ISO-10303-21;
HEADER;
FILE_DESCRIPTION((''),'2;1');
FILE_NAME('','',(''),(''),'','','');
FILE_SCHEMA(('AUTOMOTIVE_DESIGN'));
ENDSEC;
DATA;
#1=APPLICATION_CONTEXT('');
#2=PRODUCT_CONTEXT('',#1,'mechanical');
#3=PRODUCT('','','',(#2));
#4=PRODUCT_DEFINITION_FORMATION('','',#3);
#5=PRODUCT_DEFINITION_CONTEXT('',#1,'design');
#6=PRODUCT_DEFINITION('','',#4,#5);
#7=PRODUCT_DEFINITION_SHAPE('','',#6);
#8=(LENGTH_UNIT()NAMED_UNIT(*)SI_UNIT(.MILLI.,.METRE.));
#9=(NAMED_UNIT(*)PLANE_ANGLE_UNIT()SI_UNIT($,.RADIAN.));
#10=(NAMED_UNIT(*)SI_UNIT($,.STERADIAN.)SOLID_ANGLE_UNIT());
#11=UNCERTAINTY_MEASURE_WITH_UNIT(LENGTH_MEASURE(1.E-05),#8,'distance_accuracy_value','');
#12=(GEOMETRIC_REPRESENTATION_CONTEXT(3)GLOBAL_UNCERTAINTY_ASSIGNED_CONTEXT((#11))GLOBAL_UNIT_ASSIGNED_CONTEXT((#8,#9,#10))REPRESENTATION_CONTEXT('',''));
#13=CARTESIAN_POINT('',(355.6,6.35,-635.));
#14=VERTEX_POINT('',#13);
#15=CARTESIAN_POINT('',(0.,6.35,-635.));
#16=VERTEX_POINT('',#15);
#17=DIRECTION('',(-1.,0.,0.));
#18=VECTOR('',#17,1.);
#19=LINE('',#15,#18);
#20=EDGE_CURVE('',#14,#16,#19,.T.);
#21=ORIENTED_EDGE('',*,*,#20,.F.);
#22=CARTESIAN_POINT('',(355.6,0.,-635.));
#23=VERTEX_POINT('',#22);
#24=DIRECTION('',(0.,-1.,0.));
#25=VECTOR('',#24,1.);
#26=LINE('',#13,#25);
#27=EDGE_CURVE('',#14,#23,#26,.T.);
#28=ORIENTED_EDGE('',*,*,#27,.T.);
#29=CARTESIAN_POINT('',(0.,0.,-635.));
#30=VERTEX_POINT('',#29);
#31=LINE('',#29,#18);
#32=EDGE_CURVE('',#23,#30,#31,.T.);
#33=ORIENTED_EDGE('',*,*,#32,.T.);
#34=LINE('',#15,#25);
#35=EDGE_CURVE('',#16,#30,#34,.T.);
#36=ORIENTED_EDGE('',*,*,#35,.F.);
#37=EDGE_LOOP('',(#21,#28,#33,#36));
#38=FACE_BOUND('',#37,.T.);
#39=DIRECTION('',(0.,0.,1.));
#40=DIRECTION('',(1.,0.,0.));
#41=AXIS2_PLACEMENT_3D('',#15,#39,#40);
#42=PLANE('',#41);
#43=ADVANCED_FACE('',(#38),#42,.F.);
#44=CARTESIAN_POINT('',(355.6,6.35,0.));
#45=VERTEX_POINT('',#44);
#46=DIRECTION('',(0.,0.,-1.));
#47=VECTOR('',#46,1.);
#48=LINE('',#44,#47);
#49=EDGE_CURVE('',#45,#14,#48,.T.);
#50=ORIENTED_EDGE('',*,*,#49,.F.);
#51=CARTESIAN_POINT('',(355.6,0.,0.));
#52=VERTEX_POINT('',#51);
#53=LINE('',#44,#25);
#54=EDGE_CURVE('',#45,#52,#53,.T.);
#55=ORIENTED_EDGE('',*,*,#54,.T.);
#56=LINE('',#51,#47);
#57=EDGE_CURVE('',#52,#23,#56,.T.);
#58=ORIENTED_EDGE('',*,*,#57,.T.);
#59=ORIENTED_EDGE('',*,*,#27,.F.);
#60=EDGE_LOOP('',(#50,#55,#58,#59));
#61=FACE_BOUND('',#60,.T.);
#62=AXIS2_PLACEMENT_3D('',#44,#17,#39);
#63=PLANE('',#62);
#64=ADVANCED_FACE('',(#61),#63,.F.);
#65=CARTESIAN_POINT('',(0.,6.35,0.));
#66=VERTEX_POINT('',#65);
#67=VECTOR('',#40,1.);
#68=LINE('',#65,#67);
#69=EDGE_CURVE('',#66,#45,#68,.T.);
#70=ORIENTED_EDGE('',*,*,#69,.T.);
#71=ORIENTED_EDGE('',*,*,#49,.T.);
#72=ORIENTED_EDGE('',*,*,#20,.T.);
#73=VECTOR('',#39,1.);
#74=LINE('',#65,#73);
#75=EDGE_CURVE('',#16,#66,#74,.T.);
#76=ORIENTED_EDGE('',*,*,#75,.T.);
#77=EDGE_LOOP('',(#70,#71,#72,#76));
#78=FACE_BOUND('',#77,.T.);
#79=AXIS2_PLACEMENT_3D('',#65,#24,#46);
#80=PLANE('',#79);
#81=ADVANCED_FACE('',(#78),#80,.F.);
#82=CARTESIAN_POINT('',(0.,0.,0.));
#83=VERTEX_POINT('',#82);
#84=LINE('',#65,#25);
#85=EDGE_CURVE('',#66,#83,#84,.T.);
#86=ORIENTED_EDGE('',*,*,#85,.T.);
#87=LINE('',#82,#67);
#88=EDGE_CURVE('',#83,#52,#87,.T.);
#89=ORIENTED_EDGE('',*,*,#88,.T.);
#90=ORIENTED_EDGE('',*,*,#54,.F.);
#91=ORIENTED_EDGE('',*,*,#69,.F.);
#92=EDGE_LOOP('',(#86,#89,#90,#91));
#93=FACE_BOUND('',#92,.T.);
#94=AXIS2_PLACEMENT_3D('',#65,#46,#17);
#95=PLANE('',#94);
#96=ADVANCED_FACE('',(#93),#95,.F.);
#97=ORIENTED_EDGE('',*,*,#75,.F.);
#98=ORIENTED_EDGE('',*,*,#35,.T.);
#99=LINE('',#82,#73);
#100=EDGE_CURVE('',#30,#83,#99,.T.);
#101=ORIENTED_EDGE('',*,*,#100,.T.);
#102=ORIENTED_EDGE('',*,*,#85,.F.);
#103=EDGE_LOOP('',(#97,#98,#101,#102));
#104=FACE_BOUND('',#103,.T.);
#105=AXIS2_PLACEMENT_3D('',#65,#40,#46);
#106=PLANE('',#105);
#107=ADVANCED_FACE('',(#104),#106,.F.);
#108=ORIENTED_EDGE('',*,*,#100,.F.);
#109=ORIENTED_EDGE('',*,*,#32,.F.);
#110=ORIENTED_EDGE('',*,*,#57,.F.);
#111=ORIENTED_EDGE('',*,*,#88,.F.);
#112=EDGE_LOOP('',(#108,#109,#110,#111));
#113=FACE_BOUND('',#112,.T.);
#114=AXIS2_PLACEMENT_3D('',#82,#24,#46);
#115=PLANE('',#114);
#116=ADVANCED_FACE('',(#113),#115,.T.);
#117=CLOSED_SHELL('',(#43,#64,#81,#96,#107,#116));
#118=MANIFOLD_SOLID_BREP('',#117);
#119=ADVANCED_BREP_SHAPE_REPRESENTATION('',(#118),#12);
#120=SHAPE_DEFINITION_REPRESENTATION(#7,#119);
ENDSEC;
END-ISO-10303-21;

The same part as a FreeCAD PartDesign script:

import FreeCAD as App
import Part
import Sketcher
Q = App.Units.Quantity

doc = App.newDocument("Part")
body = doc.addObject("PartDesign::Body", "Body")

# Sketch on XZ plane
sketch1 = doc.addObject("Sketcher::SketchObject", "Sketch")
body.addObject(sketch1)
sketch1.AttachmentSupport = (doc.XZ_Plane, [""])
sketch1.MapMode = "FlatFace"
sketch1.addGeometry([
    Part.LineSegment(App.Vector(0, -635, 0), App.Vector(0, 0, 0)),
    Part.LineSegment(App.Vector(0, 0, 0), App.Vector(355.6, 0, 0)),
    Part.LineSegment(App.Vector(355.6, 0, 0), App.Vector(355.6, -635, 0)),
    Part.LineSegment(App.Vector(355.6, -635, 0), App.Vector(0, -635, 0)),
], False)
sketch1.addConstraint([
    Sketcher.Constraint("Coincident", 0, 2, 1, 1),
    Sketcher.Constraint("Coincident", 1, 2, 2, 1),
    Sketcher.Constraint("Coincident", 2, 2, 3, 1),
    Sketcher.Constraint("Coincident", 3, 2, 0, 1),
    Sketcher.Constraint("Vertical", 0),
    Sketcher.Constraint("Horizontal", 1),
    Sketcher.Constraint("Vertical", 2),
    Sketcher.Constraint("Horizontal", 3),
    Sketcher.Constraint("Coincident", 0, 2, -1, 1),
    Sketcher.Constraint("DistanceX", 1, 1, 1, 2, Q("14 in")),
    Sketcher.Constraint("DistanceY", 0, 1, 0, 2, Q("25 in")),
])
pad1 = doc.addObject("PartDesign::Pad", "Pad")
body.addObject(pad1)
pad1.Profile = sketch1
pad1.Length = Q("0.25 in")
pad1.Reversed = True

doc.recompute()
